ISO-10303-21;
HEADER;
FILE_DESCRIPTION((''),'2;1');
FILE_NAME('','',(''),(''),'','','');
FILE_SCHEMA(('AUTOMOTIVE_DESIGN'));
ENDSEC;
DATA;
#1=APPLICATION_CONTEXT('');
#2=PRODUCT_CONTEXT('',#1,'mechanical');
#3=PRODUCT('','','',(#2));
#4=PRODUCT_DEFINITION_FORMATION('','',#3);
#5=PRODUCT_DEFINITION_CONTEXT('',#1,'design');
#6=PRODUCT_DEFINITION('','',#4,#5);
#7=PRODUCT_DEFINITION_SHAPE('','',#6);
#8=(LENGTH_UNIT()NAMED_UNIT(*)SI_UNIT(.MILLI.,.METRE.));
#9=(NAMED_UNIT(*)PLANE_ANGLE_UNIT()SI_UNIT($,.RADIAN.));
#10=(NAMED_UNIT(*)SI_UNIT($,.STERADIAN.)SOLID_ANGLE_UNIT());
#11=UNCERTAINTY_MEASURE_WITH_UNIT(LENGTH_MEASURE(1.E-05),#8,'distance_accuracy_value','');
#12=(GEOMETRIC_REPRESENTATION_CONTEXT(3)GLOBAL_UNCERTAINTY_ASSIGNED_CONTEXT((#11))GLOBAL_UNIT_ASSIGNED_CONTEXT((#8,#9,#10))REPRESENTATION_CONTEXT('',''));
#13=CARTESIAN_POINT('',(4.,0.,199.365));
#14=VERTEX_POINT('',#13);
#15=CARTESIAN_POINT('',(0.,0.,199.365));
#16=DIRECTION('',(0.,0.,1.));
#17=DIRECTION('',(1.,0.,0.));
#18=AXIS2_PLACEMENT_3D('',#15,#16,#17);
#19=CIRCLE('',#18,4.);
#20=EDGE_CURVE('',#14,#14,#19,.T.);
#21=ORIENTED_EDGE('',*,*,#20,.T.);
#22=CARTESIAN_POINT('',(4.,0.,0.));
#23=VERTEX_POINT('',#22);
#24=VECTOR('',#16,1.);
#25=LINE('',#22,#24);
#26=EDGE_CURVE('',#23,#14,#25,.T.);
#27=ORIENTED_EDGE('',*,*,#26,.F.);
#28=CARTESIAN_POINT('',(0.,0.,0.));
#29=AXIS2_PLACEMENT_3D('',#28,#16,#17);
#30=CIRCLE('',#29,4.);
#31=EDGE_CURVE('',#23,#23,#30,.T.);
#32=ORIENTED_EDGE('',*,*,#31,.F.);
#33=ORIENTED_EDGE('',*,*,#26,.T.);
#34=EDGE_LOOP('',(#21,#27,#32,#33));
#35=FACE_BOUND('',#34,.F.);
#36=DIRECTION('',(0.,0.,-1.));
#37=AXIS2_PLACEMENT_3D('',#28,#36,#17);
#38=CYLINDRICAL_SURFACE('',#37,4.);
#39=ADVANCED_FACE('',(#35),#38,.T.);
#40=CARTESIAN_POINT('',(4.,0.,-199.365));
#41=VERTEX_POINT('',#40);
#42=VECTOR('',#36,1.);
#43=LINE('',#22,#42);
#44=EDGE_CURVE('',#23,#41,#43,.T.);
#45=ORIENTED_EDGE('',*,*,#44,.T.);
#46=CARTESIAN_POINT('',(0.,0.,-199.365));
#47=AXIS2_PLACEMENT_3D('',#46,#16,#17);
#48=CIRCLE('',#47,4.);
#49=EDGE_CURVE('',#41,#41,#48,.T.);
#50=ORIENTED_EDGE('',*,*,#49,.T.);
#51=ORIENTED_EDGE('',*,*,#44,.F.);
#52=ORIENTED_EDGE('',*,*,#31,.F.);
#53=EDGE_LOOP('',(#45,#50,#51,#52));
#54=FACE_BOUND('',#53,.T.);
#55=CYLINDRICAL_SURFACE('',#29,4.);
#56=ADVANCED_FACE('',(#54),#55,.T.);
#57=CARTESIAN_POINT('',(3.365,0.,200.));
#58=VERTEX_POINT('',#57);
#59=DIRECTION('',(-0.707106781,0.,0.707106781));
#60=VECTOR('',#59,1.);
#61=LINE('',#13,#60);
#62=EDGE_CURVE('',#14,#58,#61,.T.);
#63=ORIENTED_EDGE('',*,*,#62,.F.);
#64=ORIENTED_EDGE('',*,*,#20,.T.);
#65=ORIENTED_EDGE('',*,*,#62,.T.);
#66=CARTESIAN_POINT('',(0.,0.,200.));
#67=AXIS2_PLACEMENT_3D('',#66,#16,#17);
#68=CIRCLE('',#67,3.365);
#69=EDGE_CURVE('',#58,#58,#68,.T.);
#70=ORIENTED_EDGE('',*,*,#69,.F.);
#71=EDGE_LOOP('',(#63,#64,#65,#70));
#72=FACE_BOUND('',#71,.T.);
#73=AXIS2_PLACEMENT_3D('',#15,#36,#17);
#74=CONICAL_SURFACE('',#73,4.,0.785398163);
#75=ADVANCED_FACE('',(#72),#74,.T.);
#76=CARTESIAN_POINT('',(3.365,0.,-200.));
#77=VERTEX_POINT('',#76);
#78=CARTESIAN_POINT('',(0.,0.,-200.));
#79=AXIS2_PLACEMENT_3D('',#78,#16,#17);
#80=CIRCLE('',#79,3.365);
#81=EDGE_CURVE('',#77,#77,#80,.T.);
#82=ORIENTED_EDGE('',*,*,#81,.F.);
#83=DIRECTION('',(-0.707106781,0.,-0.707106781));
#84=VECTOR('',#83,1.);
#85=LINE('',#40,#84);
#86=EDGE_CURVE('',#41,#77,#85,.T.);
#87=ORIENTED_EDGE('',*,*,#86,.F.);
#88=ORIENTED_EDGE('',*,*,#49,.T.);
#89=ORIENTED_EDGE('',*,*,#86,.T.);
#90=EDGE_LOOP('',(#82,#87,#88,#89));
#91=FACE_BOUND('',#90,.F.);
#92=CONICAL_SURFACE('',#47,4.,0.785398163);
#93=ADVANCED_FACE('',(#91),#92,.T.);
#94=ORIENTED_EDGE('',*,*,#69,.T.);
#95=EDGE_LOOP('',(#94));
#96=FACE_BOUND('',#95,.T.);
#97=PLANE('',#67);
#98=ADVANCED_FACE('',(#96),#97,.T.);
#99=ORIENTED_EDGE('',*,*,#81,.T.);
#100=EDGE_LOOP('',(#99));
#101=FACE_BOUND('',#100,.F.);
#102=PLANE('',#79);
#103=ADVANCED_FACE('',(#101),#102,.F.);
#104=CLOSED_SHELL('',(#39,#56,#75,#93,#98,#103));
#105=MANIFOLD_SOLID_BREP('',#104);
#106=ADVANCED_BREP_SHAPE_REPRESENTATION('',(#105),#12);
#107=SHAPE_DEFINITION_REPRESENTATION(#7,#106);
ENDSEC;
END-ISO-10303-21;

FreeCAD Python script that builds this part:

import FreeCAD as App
import Part
import Sketcher
Q = App.Units.Quantity


def edges_at(feature, points):
    """Names of the edges that pass closest to the given points."""
    edges = feature.Shape.Edges
    near = lambda p: min(range(len(edges)), key=lambda i: edges[i].distToShape(Part.Vertex(*p))[0])
    return sorted({f"Edge{near(p) + 1}" for p in points})

doc = App.newDocument("Part")
body = doc.addObject("PartDesign::Body", "Body")

sketch1 = body.newObject("Sketcher::SketchObject", "Sketch")
sketch1.AttachmentSupport = (doc.getObject("XY_Plane"), [""])
sketch1.MapMode = "FlatFace"
sketch1.addGeometry(Part.Circle(App.Vector(0, 0, 0), App.Vector(0, 0, 1), 4), False)
sketch1.addConstraint(Sketcher.Constraint("Coincident", 0, 3, -1, 1))
sketch1.addConstraint(Sketcher.Constraint("Diameter", 0, Q("8 mm")))
pad1 = body.newObject("PartDesign::Pad", "Pad")
pad1.Profile = sketch1
pad1.Length = 400
pad1.Midplane = True
doc.recompute()

chamfer = body.newObject("PartDesign::Chamfer", "Chamfer")
chamfer.Base = (pad1, edges_at(pad1, [(-4, 0, 200), (-4, 0, -200)]))
chamfer.Size = 0.635

doc.recompute()
